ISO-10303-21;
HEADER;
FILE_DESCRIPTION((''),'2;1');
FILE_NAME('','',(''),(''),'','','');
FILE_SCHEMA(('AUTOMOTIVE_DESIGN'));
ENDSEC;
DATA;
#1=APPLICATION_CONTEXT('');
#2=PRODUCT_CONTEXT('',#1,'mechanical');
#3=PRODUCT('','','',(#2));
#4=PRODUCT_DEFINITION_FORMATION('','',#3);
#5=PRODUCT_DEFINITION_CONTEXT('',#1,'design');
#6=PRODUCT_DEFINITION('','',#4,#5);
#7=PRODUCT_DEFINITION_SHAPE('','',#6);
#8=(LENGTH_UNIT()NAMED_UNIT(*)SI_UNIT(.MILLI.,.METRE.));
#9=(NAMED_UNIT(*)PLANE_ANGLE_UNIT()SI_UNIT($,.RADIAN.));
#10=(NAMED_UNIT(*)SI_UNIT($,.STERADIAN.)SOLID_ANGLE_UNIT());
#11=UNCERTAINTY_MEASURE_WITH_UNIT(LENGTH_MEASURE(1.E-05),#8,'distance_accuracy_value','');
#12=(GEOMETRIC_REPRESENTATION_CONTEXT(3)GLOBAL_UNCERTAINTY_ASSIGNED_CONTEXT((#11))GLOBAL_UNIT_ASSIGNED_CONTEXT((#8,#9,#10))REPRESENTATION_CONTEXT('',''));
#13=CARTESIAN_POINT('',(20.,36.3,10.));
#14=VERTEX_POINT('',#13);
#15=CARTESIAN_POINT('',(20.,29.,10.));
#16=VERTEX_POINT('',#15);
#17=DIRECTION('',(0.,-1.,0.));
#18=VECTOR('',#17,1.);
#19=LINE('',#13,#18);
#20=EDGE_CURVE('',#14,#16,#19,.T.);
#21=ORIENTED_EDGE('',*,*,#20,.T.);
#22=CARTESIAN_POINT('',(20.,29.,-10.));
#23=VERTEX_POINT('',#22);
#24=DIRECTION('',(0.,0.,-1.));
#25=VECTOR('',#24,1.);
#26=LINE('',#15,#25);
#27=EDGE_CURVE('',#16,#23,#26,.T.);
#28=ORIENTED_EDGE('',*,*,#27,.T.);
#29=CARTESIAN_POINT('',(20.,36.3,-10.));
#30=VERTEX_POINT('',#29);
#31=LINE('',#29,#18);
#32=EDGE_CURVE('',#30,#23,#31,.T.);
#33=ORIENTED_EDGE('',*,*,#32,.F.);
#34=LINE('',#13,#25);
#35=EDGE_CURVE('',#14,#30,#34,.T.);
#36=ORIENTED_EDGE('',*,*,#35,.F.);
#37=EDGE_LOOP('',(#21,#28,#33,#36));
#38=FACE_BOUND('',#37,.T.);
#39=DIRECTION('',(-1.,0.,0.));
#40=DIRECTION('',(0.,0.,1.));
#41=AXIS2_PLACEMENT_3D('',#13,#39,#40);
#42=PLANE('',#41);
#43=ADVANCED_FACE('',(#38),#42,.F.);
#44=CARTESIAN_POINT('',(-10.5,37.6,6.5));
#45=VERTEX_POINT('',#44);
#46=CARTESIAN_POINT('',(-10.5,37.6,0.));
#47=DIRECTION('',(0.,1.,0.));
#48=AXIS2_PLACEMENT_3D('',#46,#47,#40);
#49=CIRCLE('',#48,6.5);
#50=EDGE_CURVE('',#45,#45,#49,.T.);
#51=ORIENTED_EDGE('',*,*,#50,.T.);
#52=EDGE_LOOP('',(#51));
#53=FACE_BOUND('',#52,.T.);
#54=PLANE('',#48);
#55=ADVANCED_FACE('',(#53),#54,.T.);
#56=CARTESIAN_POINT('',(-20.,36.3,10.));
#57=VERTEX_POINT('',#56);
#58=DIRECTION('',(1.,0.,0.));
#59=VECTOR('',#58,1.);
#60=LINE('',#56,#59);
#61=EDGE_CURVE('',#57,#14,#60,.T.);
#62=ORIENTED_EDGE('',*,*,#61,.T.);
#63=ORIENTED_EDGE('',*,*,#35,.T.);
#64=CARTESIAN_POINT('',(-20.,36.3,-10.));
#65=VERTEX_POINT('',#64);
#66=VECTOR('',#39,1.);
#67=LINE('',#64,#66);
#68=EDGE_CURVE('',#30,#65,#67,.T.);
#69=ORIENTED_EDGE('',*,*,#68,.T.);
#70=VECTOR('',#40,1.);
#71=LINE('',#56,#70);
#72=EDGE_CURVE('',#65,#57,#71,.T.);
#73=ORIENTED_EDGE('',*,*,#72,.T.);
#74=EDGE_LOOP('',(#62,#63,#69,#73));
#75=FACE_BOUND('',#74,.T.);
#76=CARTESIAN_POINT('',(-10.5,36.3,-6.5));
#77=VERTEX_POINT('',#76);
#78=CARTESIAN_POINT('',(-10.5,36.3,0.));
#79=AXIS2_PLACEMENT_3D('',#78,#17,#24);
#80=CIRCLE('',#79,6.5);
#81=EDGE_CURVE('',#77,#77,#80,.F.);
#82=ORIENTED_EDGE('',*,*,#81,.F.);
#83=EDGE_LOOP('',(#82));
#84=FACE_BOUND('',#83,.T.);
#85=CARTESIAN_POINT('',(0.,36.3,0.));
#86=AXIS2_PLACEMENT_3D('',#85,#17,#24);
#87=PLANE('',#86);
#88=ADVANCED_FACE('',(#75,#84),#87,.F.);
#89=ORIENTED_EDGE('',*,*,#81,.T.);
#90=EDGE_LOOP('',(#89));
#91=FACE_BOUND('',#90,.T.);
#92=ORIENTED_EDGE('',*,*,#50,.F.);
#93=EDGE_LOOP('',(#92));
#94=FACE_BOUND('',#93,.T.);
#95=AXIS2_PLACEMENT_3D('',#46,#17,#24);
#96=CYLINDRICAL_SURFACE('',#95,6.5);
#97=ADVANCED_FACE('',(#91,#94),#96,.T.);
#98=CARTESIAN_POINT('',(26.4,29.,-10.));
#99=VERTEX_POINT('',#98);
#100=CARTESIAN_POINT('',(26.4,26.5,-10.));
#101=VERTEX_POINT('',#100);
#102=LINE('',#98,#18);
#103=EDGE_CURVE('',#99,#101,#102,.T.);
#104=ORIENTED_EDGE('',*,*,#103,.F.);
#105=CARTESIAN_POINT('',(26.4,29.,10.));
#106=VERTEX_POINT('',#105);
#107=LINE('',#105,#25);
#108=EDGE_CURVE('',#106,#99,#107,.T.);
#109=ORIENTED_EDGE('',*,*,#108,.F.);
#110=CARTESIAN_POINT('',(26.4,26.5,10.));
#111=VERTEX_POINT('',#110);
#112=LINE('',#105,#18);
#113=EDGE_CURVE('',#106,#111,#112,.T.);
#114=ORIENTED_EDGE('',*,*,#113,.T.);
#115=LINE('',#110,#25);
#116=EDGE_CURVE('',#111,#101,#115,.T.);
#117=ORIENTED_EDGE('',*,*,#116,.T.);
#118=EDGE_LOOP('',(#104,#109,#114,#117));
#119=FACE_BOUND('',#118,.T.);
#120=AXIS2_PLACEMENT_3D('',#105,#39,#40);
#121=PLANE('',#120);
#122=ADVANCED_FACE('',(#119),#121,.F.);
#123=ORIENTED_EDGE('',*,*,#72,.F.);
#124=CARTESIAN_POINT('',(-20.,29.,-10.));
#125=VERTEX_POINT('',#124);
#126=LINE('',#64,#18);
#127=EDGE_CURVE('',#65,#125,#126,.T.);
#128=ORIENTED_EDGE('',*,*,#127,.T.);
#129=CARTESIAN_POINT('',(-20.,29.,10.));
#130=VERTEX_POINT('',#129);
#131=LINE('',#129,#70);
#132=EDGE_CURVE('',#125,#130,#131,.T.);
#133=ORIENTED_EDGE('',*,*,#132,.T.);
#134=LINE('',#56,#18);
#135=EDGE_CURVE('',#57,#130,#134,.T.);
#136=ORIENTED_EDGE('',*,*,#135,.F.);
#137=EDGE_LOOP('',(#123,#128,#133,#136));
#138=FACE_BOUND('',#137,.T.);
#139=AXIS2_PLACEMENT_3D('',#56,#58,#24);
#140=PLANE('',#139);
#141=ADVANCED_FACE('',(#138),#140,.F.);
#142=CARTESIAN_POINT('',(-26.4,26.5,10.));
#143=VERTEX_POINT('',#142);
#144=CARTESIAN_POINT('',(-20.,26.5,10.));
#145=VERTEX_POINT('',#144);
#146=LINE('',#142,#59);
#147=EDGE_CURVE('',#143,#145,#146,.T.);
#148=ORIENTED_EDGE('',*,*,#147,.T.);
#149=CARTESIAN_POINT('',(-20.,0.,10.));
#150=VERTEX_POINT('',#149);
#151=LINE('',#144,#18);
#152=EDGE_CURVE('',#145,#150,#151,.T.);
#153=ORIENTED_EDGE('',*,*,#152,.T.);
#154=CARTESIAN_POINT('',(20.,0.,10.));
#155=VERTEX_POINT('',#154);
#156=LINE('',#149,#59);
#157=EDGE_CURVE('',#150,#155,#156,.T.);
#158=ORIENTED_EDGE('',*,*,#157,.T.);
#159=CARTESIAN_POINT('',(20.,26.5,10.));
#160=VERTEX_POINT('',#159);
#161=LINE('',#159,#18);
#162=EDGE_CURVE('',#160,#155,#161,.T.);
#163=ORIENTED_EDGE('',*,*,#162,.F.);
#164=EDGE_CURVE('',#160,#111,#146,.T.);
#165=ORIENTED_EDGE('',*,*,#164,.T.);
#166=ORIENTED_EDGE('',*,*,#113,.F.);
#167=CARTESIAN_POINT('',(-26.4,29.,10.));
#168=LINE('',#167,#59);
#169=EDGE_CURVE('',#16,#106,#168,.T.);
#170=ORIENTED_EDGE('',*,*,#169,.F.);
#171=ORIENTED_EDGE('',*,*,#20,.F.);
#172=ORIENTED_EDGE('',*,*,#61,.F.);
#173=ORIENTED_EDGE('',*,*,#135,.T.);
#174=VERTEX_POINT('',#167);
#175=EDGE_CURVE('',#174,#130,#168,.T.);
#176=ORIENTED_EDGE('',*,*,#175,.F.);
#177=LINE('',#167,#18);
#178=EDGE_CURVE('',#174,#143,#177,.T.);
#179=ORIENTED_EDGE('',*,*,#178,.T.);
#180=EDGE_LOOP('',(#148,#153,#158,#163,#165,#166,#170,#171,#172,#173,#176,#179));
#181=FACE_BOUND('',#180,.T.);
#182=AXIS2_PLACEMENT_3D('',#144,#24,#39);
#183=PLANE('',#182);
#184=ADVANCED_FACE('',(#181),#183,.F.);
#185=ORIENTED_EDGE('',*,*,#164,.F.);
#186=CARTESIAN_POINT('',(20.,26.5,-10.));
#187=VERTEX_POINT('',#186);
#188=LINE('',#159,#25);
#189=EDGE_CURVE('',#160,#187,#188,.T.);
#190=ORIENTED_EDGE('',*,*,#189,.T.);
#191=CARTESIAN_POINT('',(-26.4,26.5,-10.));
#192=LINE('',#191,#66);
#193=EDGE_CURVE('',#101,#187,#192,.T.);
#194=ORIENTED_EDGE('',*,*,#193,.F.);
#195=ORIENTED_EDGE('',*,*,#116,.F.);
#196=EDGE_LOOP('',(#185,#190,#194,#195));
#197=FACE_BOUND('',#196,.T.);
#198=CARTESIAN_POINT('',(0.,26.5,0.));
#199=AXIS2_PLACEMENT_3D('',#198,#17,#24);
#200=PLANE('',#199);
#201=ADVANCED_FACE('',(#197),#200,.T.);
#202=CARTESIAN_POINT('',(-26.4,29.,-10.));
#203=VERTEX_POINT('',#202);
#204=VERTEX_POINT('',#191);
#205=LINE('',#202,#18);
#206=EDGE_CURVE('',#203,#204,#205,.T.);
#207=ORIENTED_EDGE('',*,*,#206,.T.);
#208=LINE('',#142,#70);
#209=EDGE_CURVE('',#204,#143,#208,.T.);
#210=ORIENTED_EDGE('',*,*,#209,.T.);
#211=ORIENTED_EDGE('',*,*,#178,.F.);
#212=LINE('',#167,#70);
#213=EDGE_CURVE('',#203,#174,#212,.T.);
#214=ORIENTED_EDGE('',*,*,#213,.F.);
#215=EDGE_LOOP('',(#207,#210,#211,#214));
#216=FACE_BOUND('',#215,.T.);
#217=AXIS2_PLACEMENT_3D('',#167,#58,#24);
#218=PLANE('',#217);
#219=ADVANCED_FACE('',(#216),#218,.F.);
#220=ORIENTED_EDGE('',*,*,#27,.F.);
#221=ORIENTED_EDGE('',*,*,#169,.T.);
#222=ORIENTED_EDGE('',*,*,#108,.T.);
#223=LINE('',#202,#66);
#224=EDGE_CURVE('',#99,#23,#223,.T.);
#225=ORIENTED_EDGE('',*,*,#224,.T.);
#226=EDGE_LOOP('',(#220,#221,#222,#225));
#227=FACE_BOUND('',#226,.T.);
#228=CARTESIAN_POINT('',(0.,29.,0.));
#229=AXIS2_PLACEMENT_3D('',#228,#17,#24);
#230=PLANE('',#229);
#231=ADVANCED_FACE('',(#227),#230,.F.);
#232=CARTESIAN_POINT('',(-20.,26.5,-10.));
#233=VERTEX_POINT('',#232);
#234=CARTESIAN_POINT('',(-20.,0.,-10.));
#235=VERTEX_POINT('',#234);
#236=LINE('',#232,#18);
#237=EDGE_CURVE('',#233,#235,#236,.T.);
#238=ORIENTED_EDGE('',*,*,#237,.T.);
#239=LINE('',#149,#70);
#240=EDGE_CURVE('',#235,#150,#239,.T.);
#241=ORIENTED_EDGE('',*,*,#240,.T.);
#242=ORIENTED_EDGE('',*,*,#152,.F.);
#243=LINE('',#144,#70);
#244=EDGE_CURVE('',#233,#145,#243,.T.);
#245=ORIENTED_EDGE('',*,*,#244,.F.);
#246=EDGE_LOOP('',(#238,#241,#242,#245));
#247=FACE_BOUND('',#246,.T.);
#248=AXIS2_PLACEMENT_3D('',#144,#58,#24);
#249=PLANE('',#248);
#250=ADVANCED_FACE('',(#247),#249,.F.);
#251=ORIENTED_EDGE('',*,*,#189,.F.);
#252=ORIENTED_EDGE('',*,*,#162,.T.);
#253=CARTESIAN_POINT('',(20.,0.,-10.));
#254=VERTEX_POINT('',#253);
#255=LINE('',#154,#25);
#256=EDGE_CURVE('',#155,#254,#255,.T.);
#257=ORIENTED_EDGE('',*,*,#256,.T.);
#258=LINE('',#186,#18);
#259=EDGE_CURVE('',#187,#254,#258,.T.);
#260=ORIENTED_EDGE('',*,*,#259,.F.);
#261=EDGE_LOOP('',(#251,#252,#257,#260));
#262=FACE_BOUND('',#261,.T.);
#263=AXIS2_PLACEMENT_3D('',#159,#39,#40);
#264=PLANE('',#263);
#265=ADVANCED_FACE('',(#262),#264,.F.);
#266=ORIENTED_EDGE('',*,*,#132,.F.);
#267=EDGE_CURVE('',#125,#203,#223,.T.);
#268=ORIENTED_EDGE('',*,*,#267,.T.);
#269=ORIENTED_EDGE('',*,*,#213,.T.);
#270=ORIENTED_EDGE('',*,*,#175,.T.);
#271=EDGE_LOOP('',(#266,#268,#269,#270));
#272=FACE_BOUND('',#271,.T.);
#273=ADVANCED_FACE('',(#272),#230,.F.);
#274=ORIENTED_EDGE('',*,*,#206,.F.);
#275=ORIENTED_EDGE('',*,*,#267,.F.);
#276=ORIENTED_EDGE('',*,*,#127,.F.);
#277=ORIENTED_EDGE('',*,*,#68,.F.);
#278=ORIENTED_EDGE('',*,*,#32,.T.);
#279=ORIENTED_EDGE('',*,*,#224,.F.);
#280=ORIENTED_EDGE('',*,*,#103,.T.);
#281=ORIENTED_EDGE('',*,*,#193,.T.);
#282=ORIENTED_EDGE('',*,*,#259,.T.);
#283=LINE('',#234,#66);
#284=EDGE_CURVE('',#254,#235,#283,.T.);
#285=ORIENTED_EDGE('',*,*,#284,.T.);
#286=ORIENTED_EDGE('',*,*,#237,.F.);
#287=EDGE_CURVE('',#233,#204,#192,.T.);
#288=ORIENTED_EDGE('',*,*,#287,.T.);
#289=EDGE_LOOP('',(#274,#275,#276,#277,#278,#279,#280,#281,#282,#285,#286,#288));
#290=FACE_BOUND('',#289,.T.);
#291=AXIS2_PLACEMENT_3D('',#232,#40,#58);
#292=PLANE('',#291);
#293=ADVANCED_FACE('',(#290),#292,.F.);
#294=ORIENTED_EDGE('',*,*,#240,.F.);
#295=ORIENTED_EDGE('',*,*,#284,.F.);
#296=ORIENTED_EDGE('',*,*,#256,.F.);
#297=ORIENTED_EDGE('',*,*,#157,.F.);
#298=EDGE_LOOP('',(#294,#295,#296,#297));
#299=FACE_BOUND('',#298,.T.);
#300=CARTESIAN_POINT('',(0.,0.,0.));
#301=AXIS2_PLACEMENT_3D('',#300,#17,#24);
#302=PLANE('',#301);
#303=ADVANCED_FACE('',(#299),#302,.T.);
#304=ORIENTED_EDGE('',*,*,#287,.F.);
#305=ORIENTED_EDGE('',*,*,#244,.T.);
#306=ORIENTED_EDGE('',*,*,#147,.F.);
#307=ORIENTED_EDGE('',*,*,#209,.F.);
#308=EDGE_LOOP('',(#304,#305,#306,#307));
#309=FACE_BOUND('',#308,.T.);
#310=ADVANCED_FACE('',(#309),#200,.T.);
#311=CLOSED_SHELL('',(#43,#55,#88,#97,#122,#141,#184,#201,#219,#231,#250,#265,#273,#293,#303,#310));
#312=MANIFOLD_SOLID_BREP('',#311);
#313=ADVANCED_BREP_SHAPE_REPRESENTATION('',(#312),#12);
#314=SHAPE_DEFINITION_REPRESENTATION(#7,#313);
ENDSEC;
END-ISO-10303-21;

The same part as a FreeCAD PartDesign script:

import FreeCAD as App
import Part
import Sketcher
Q = App.Units.Quantity


def add_polygon(sketch, points):
    """Adds a closed chain of lines whose ends are joined by coincident constraints."""
    first, n = sketch.GeometryCount, len(points)
    for a, b in zip(points, points[1:] + points[:1]):
        sketch.addGeometry(Part.LineSegment(App.Vector(*a, 0), App.Vector(*b, 0)), False)
    for i in range(n):
        sketch.addConstraint(Sketcher.Constraint("Coincident", first + i, 2, first + (i + 1) % n, 1))

doc = App.newDocument("Part")
body = doc.addObject("PartDesign::Body", "Body")

# Sketch on XZ plane
sketch1 = body.newObject("Sketcher::SketchObject", "Sketch")
sketch1.AttachmentSupport = (doc.getObject("XZ_Plane"), [""])
sketch1.MapMode = "FlatFace"
add_polygon(sketch1, [(-20, -10), (-20, 10), (20, 10), (20, -10)])  # lines 0-3
sketch1.addConstraint([
    Sketcher.Constraint("Vertical", 0),
    Sketcher.Constraint("Horizontal", 1),
    Sketcher.Constraint("Vertical", 2),
    Sketcher.Constraint("Horizontal", 3),
    Sketcher.Constraint("Symmetric", 0, 2, 2, 2, -1, 1),
    Sketcher.Constraint("DistanceX", 1, 1, 1, 2, Q("40 mm")),
    Sketcher.Constraint("DistanceY", 0, 1, 0, 2, Q("20 mm")),
])
pad1 = body.newObject("PartDesign::Pad", "Pad")
pad1.Profile = sketch1
pad1.Length = 26.5
pad1.Reversed = True

# Sketch on XZ plane
sketch2 = body.newObject("Sketcher::SketchObject", "Sketch001")
sketch2.AttachmentSupport = (doc.getObject("XZ_Plane"), [""])
sketch2.MapMode = "FlatFace"
sketch2.AttachmentOffset = App.Placement(App.Vector(0, 0, -26.5), App.Rotation())
add_polygon(sketch2, [(-26, -10), (-26, 10), (26, 10), (26, -10)])  # lines 0-3
sketch2.addConstraint([
    Sketcher.Constraint("Vertical", 0),
    Sketcher.Constraint("Horizontal", 1),
    Sketcher.Constraint("Vertical", 2),
    Sketcher.Constraint("Horizontal", 3),
    Sketcher.Constraint("Symmetric", 0, 2, 2, 2, -1, 1),
    Sketcher.Constraint("DistanceY", 0, 1, 0, 2, Q("20 mm")),
    Sketcher.Constraint("DistanceX", 1, 1, 1, 2, Q("52.8 mm")),
])
pad2 = body.newObject("PartDesign::Pad", "Pad001")
pad2.Profile = sketch2
pad2.Length = 2.5
pad2.Reversed = True

# Sketch on XZ plane
sketch3 = body.newObject("Sketcher::SketchObject", "Sketch002")
sketch3.AttachmentSupport = (doc.getObject("XZ_Plane"), [""])
sketch3.MapMode = "FlatFace"
sketch3.AttachmentOffset = App.Placement(App.Vector(0, 0, -29), App.Rotation())
add_polygon(sketch3, [(-20, -10), (-20, 10), (20, 10), (20, -10)])  # lines 0-3
sketch3.addConstraint([
    Sketcher.Constraint("Vertical", 0),
    Sketcher.Constraint("Horizontal", 1),
    Sketcher.Constraint("Vertical", 2),
    Sketcher.Constraint("Horizontal", 3),
    Sketcher.Constraint("Symmetric", 0, 2, 2, 2, -1, 1),
    Sketcher.Constraint("DistanceX", 1, 1, 1, 2, Q("40 mm")),
    Sketcher.Constraint("DistanceY", 0, 1, 0, 2, Q("20 mm")),
])
pad3 = body.newObject("PartDesign::Pad", "Pad002")
pad3.Profile = sketch3
pad3.Length = 7.3
pad3.Reversed = True

# Sketch on XZ plane
sketch4 = body.newObject("Sketcher::SketchObject", "Sketch003")
sketch4.AttachmentSupport = (doc.getObject("XZ_Plane"), [""])
sketch4.MapMode = "FlatFace"
sketch4.AttachmentOffset = App.Placement(App.Vector(0, 0, -36.3), App.Rotation())
sketch4.addGeometry(Part.Circle(App.Vector(-10, 0, 0), App.Vector(0, 0, 1), 6), False)
sketch4.addConstraint([
    Sketcher.Constraint("PointOnObject", 0, 3, -1),
    Sketcher.Constraint("Diameter", 0, Q("13 mm")),
    Sketcher.Constraint("DistanceX", 0, 3, -1, 1, Q("10.5 mm")),
])
pad4 = body.newObject("PartDesign::Pad", "Pad003")
pad4.Profile = sketch4
pad4.Length = 1.3
pad4.Reversed = True

doc.recompute()
